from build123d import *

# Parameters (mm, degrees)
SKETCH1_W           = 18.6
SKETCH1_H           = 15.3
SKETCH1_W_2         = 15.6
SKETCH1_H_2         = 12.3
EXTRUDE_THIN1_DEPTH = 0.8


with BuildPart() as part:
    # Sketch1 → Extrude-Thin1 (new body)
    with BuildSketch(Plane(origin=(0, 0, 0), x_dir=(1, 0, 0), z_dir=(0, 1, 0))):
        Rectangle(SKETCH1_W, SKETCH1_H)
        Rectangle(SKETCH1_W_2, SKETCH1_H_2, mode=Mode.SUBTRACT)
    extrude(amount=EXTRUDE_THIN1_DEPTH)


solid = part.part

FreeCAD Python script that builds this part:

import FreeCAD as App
import Part
import Sketcher
from FreeCAD import Vector
Q = App.Units.Quantity


def add_polygon(sketch, points):
    """Adds a closed chain of lines whose ends are joined by coincident constraints."""
    first, n = sketch.GeometryCount, len(points)
    for a, b in zip(points, points[1:] + points[:1]):
        sketch.addGeometry(Part.LineSegment(App.Vector(*a, 0), App.Vector(*b, 0)), False)
    for i in range(n):
        sketch.addConstraint(Sketcher.Constraint("Coincident", first + i, 2, first + (i + 1) % n, 1))

doc = App.newDocument("Part")
body = doc.addObject("PartDesign::Body", "Body")

# Sketch on XZ plane
sketch1 = doc.addObject("Sketcher::SketchObject", "Sketch")
body.addObject(sketch1)
sketch1.AttachmentSupport = (doc.XZ_Plane, [""])
sketch1.MapMode = "FlatFace"
add_polygon(sketch1, [(-9.3, -7.65), (-9.3, 7.65), (9.3, 7.65), (9.3, -7.65)])  # lines 0-3
add_polygon(sketch1, [(7.8, 6.15), (-7.8, 6.15), (-7.8, -6.15), (7.8, -6.15)])  # lines 4-7
sketch1.addConstraint([
    Sketcher.Constraint("Vertical", 0),
    Sketcher.Constraint("Horizontal", 1),
    Sketcher.Constraint("Vertical", 2),
    Sketcher.Constraint("Horizontal", 3),
    Sketcher.Constraint("Horizontal", 4),
    Sketcher.Constraint("Vertical", 5),
    Sketcher.Constraint("Horizontal", 6),
    Sketcher.Constraint("Vertical", 7),
    Sketcher.Constraint("Symmetric", 0, 2, 2, 2, -1, 1),
    Sketcher.Constraint("Symmetric", 4, 2, 6, 2, -1, 1),
    Sketcher.Constraint("DistanceX", 1, 1, 1, 2, Q("18.6 mm")),
    Sketcher.Constraint("DistanceX", 4, 2, 4, 1, Q("15.6 mm")),
    Sketcher.Constraint("DistanceY", 0, 1, 0, 2, Q("15.3 mm")),
    Sketcher.Constraint("DistanceY", 5, 2, 5, 1, Q("12.3 mm")),
])
pad1 = doc.addObject("PartDesign::Pad", "Pad")
body.addObject(pad1)
pad1.Profile = sketch1
pad1.Length = 0.8
pad1.Reversed = True

doc.recompute()
